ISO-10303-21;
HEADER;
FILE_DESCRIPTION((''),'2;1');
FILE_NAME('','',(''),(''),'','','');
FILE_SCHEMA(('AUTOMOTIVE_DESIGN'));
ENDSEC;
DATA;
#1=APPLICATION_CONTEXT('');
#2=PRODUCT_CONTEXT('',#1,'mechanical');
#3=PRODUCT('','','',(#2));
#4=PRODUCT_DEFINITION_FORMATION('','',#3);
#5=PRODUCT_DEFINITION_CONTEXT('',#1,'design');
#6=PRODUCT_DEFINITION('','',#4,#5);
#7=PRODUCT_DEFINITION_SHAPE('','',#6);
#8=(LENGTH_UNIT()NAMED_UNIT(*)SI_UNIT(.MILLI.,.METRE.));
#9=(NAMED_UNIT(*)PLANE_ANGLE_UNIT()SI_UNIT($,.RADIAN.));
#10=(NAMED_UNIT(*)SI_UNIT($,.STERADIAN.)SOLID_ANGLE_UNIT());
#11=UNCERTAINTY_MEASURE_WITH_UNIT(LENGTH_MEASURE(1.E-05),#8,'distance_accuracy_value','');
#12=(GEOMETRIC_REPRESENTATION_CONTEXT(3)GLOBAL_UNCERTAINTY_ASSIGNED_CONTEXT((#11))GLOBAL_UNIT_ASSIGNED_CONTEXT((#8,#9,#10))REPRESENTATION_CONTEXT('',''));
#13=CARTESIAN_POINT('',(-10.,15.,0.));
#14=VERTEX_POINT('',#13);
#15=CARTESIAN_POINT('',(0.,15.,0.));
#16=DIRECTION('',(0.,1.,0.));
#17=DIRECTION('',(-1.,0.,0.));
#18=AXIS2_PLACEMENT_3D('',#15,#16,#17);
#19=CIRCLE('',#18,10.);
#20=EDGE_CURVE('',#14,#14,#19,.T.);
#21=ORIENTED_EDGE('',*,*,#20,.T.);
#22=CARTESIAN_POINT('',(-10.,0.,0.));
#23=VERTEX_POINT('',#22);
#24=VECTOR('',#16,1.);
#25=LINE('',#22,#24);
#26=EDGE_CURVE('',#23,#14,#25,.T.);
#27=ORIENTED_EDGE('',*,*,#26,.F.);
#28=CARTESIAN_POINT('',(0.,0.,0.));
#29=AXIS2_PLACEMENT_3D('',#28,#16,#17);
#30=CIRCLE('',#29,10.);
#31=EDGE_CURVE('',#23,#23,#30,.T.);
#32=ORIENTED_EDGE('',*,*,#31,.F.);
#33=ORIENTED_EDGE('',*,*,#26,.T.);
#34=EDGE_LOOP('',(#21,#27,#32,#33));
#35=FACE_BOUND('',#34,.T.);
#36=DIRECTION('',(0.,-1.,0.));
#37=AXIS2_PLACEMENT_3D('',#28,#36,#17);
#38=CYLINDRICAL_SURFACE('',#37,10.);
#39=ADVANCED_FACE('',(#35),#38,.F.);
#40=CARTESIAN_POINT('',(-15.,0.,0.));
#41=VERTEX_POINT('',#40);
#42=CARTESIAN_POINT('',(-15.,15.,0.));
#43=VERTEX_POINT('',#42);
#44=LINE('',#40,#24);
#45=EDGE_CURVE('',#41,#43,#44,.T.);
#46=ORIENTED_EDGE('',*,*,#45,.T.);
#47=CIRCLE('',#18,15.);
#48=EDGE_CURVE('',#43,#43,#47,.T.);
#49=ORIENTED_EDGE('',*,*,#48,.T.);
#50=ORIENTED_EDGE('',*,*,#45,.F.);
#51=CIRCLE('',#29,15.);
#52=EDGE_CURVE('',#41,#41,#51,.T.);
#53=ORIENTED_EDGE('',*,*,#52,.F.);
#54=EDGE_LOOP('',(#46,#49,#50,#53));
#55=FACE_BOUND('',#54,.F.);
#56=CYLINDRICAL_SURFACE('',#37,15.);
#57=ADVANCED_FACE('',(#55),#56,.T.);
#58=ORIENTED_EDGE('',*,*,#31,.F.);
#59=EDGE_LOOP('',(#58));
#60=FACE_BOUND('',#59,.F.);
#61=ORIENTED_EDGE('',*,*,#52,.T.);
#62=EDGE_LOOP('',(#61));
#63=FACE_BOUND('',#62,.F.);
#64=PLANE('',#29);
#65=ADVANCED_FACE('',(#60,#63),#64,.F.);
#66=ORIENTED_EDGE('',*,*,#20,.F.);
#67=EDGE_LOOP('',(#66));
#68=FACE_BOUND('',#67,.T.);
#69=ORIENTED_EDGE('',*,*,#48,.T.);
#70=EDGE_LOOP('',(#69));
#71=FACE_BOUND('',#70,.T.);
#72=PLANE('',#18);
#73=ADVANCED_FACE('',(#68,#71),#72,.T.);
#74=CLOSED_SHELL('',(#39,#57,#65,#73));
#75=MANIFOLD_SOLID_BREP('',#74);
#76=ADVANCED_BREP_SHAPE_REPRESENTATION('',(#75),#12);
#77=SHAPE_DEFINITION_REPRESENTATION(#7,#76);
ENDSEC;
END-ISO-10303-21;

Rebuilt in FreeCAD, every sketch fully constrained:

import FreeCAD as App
import Part
import Sketcher
from FreeCAD import Vector
Q = App.Units.Quantity

doc = App.newDocument("Part")
body = doc.addObject("PartDesign::Body", "Body")

# Sketch on XZ plane
sketch1 = body.newObject("Sketcher::SketchObject", "Sketch")
sketch1.AttachmentSupport = (doc.getObject("XZ_Plane"), [""])
sketch1.MapMode = "FlatFace"
sketch1.addGeometry([
    Part.Circle(Vector(0, 0, 0), Vector(0, 0, 1), 15),
    Part.Circle(Vector(0, 0, 0), Vector(0, 0, 1), 10),
], False)
sketch1.addConstraint([
    Sketcher.Constraint("Coincident", 0, 3, -1, 1),
    Sketcher.Constraint("Coincident", 1, 3, -1, 1),
    Sketcher.Constraint("Diameter", 0, Q("30 mm")),
    Sketcher.Constraint("Diameter", 1, Q("20 mm")),
])
pad1 = body.newObject("PartDesign::Pad", "Pad")
pad1.Profile = sketch1
pad1.Length = 15
pad1.Reversed = True

doc.recompute()
